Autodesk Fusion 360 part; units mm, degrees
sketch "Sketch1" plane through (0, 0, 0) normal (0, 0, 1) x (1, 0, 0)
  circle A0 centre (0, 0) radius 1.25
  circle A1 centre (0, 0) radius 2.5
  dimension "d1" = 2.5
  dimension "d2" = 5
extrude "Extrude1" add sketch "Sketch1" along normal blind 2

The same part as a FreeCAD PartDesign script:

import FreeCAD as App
import Part
import Sketcher
from FreeCAD import Vector
Q = App.Units.Quantity

doc = App.newDocument("Part")
body = doc.addObject("PartDesign::Body", "Body")

sketch1 = body.newObject("Sketcher::SketchObject", "Sketch")
sketch1.AttachmentSupport = (doc.getObject("XY_Plane"), [""])
sketch1.MapMode = "FlatFace"
sketch1.addGeometry(Part.Circle(Vector(0, 0, 0), Vector(0, 0, 1), 2.5), False)
sketch1.addGeometry(Part.Circle(Vector(0, 0, 0), Vector(0, 0, 1), 1.2), False)
sketch1.addConstraint(Sketcher.Constraint("Coincident", 0, 3, -1, 1))
sketch1.addConstraint(Sketcher.Constraint("Coincident", 1, 3, -1, 1))
sketch1.addConstraint(Sketcher.Constraint("Diameter", 0, Q("5 mm")))
sketch1.addConstraint(Sketcher.Constraint("Diameter", 1, Q("2.5 mm")))
pad1 = body.newObject("PartDesign::Pad", "Pad")
pad1.Profile = sketch1
pad1.Length = 2

doc.recompute()
